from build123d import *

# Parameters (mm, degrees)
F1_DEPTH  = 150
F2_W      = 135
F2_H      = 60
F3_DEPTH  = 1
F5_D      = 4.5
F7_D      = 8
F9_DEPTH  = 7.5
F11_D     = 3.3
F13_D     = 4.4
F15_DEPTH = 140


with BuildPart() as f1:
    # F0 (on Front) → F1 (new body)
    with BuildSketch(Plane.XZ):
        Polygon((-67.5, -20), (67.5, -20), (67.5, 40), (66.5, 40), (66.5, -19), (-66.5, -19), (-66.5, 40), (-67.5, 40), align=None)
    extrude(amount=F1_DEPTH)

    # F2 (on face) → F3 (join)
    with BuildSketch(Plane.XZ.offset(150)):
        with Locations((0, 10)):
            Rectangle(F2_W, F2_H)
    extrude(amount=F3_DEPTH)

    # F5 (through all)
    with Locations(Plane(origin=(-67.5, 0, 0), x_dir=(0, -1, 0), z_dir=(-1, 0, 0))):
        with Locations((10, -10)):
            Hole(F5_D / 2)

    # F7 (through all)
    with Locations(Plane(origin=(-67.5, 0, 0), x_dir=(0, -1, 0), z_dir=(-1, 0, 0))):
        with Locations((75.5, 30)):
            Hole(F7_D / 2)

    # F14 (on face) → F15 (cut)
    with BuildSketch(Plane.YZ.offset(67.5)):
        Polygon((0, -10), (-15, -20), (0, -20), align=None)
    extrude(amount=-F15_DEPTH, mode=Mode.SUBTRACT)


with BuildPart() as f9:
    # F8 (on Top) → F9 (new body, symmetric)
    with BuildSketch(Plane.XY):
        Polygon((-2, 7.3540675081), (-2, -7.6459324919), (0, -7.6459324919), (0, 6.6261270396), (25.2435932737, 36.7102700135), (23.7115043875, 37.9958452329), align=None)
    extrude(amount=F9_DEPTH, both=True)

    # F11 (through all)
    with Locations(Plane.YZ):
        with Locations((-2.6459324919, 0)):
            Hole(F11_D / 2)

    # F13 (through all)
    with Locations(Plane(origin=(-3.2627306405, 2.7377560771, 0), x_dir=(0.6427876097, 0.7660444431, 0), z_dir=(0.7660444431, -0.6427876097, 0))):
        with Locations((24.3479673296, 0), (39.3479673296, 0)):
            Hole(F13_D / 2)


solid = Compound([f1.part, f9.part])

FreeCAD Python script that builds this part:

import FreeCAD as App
import Part
import Sketcher

V = App.Vector
Q = App.Units.Quantity


def add_polygon(sketch, points):
    """Adds a closed chain of lines whose ends are joined by coincident constraints."""
    first, n = sketch.GeometryCount, len(points)
    for a, b in zip(points, points[1:] + points[:1]):
        sketch.addGeometry(Part.LineSegment(App.Vector(*a, 0), App.Vector(*b, 0)), False)
    for i in range(n):
        sketch.addConstraint(Sketcher.Constraint("Coincident", first + i, 2, first + (i + 1) % n, 1))

doc = App.newDocument("Part")
params = doc.addObject("Spreadsheet::Sheet", "Params")
for row, (alias, value) in enumerate([
    ("sketch1_width", "135 mm"),
    ("sketch1_width2", "1 mm"),
    ("sketch1_height", "60 mm"),
    ("sketch1_height2", "59 mm"),
    ("pad1_length", "150 mm"),
    ("sketch2_width", "135 mm"),
    ("sketch2_height", "60 mm"),
    ("pad2_length", "1 mm"),
    ("sketch3_diameter", "4.5 mm"),
    ("hole_diameter", "4.5 mm"),
    ("sketch4_diameter", "8 mm"),
    ("hole2_diameter", "8 mm"),
    ("sketch5_width", "15 mm"),
    ("sketch5_height", "10 mm"),
    ("pocket1_length", "140 mm"),
    ("sketch6_width", "2 mm"),
    ("sketch6_height", "15 mm"),
    ("sketch6_length", "2 mm"),
    ("sketch6_length2", "40 mm"),
    ("pad3_length", "15 mm"),
    ("sketch7_diameter", "3.3 mm"),
    ("hole3_diameter", "3.3 mm"),
    ("sketch8_diameter", "4.4 mm"),
    ("hole4_diameter", "4.4 mm"),
], start=1):
    params.set(f"A{row}", alias)
    params.set(f"B{row}", "=" + value)
    params.setAlias(f"B{row}", alias)

body = doc.addObject("PartDesign::Body", "Body")

# Sketch on XZ plane
sketch1 = body.newObject("Sketcher::SketchObject", "Sketch")
sketch1.AttachmentSupport = (doc.getObject("XZ_Plane"), [""])
sketch1.MapMode = "FlatFace"
add_polygon(sketch1, [(-67.5, -20), (67.5, -20), (67.5, 40), (66.5, 40), (66.5, -19), (-66.5, -19), (-66.5, 40), (-67.5, 40)])  # lines 0-7
sketch1.addConstraint([
    Sketcher.Constraint("Horizontal", 0),
    Sketcher.Constraint("Vertical", 1),
    Sketcher.Constraint("Horizontal", 2),
    Sketcher.Constraint("Vertical", 3),
    Sketcher.Constraint("Horizontal", 4),
    Sketcher.Constraint("Vertical", 5),
    Sketcher.Constraint("Horizontal", 6),
    Sketcher.Constraint("Vertical", 7),
    Sketcher.Constraint("Symmetric", 2, 2, 5, 2, -2),
    Sketcher.Constraint("Equal", 2, 6),
    Sketcher.Constraint("DistanceX", 0, 1, 0, 2, 135.0),
    Sketcher.Constraint("DistanceX", 2, 2, 2, 1, 1.0),
    Sketcher.Constraint("DistanceY", 1, 1, 1, 2, 60.0),
    Sketcher.Constraint("DistanceY", 3, 2, 3, 1, 59.0),
    Sketcher.Constraint("DistanceY", 0, 2, -1, 1, 20.0),
])
sketch1.setExpression("Constraints[18]", "Params.sketch1_width")
sketch1.setExpression("Constraints[19]", "Params.sketch1_width2")
sketch1.setExpression("Constraints[20]", "Params.sketch1_height")
sketch1.setExpression("Constraints[21]", "Params.sketch1_height2")
pad1 = body.newObject("PartDesign::Pad", "Pad")
pad1.Profile = sketch1
pad1.setExpression("Length", "Params.pad1_length")

# Sketch on XZ plane
sketch2 = body.newObject("Sketcher::SketchObject", "Sketch001")
sketch2.AttachmentSupport = (doc.getObject("XZ_Plane"), [""])
sketch2.MapMode = "FlatFace"
sketch2.AttachmentOffset = App.Placement(V(0, 0, 150), App.Rotation())
add_polygon(sketch2, [(-67.5, 40), (-67.5, -20), (67.5, -20), (67.5, 40)])  # lines 0-3
sketch2.addConstraint([
    Sketcher.Constraint("Vertical", 0),
    Sketcher.Constraint("Horizontal", 1),
    Sketcher.Constraint("Vertical", 2),
    Sketcher.Constraint("Horizontal", 3),
    Sketcher.Constraint("DistanceX", 1, 1, 1, 2, 135.0),
    Sketcher.Constraint("DistanceY", 0, 2, 0, 1, 60.0),
    Sketcher.Constraint("DistanceY", 0, 2, -1, 1, 20.0),
    Sketcher.Constraint("DistanceX", 0, 2, -1, 1, 67.5),
])
sketch2.setExpression("Constraints[8]", "Params.sketch2_width")
sketch2.setExpression("Constraints[9]", "Params.sketch2_height")
pad2 = body.newObject("PartDesign::Pad", "Pad001")
pad2.Profile = sketch2
pad2.setExpression("Length", "Params.pad2_length")

# Sketch on YZ plane
sketch3 = body.newObject("Sketcher::SketchObject", "Sketch002")
sketch3.AttachmentSupport = (doc.getObject("YZ_Plane"), [""])
sketch3.MapMode = "FlatFace"
sketch3.AttachmentOffset = App.Placement(V(0, 0, -67.5), App.Rotation())
sketch3.addGeometry(Part.Circle(V(-10, -10, 0), V(0, 0, 1), 2.25), False)
sketch3.addConstraint([
    Sketcher.Constraint("Diameter", 0, 4.5),
    Sketcher.Constraint("DistanceX", 0, 3, -1, 1, 10.0),
    Sketcher.Constraint("DistanceY", 0, 3, -1, 1, 10.0),
])
sketch3.setExpression("Constraints[0]", "Params.sketch3_diameter")
doc.recompute()
hole = body.newObject("PartDesign::Hole", "Hole")
hole.Profile = sketch3
hole.ThreadType = "None"
hole.setExpression("Diameter", "Params.hole_diameter")
hole.DepthType = "ThroughAll"
hole.Reversed = True

# Sketch on YZ plane
sketch4 = body.newObject("Sketcher::SketchObject", "Sketch003")
sketch4.AttachmentSupport = (doc.getObject("YZ_Plane"), [""])
sketch4.MapMode = "FlatFace"
sketch4.AttachmentOffset = App.Placement(V(0, 0, -67.5), App.Rotation())
sketch4.addGeometry(Part.Circle(V(-75.5, 30, 0), V(0, 0, 1), 4), False)
sketch4.addConstraint([
    Sketcher.Constraint("Diameter", 0, 8.0),
    Sketcher.Constraint("DistanceY", -1, 1, 0, 3, 30.0),
    Sketcher.Constraint("DistanceX", 0, 3, -1, 1, 75.5),
])
sketch4.setExpression("Constraints[0]", "Params.sketch4_diameter")
doc.recompute()
hole2 = body.newObject("PartDesign::Hole", "Hole001")
hole2.Profile = sketch4
hole2.ThreadType = "None"
hole2.setExpression("Diameter", "Params.hole2_diameter")
hole2.DepthType = "ThroughAll"
hole2.Reversed = True

# Sketch on YZ plane
sketch5 = body.newObject("Sketcher::SketchObject", "Sketch004")
sketch5.AttachmentSupport = (doc.getObject("YZ_Plane"), [""])
sketch5.MapMode = "FlatFace"
sketch5.AttachmentOffset = App.Placement(V(0, 0, 67.5), App.Rotation())
add_polygon(sketch5, [(0, -10), (-15, -20), (0, -20)])  # lines 0-2
sketch5.addConstraint([
    Sketcher.Constraint("Horizontal", 1),
    Sketcher.Constraint("Vertical", 2),
    Sketcher.Constraint("PointOnObject", 1, 2, -2),
    Sketcher.Constraint("DistanceX", 1, 1, 1, 2, 15.0),
    Sketcher.Constraint("DistanceY", 2, 1, 2, 2, 10.0),
    Sketcher.Constraint("DistanceY", 0, 2, -1, 1, 20.0),
])
sketch5.setExpression("Constraints[6]", "Params.sketch5_width")
sketch5.setExpression("Constraints[7]", "Params.sketch5_height")
pocket1 = body.newObject("PartDesign::Pocket", "Pocket")
pocket1.Profile = sketch5
pocket1.setExpression("Length", "Params.pocket1_length")
body2 = doc.addObject("PartDesign::Body", "Body001")

# Sketch on XY plane
sketch6 = body2.newObject("Sketcher::SketchObject", "Sketch005")
sketch6.AttachmentSupport = (doc.getObject("XY_Plane001"), [""])
sketch6.MapMode = "FlatFace"
add_polygon(sketch6, [(-2, 7.354068), (-2, -7.645932), (0, -7.645932), (0, 6.626127), (25.243593, 36.71027), (23.711504, 37.995845)])  # lines 0-5
sketch6.addConstraint([
    Sketcher.Constraint("Vertical", 0),
    Sketcher.Constraint("Horizontal", 1),
    Sketcher.Constraint("Vertical", 2),
    Sketcher.Constraint("PointOnObject", 1, 2, -2),
    Sketcher.Constraint("Perpendicular", 3, 4),
    Sketcher.Constraint("Perpendicular", 4, 5),
    Sketcher.Constraint("DistanceX", 1, 1, 1, 2, 2.0),
    Sketcher.Constraint("DistanceY", 0, 2, 0, 1, 15.0),
    Sketcher.Constraint("Angle", 3, Q("50 deg")),
    Sketcher.Constraint("Distance", 4, 2.0),
    Sketcher.Constraint("Distance", 5, 40.0),
    Sketcher.Constraint("DistanceY", -1, 1, 3, 2, 36.71027),
])
sketch6.setExpression("Constraints[12]", "Params.sketch6_width")
sketch6.setExpression("Constraints[13]", "Params.sketch6_height")
sketch6.setExpression("Constraints[15]", "Params.sketch6_length")
sketch6.setExpression("Constraints[16]", "Params.sketch6_length2")
pad3 = body2.newObject("PartDesign::Pad", "Pad002")
pad3.Profile = sketch6
pad3.setExpression("Length", "Params.pad3_length")
pad3.Midplane = True

# Sketch on YZ plane
sketch7 = body2.newObject("Sketcher::SketchObject", "Sketch006")
sketch7.AttachmentSupport = (doc.getObject("YZ_Plane001"), [""])
sketch7.MapMode = "FlatFace"
sketch7.addGeometry(Part.Circle(V(-2.645932, 0, 0), V(0, 0, 1), 1.65), False)
sketch7.addConstraint([
    Sketcher.Constraint("PointOnObject", 0, 3, -1),
    Sketcher.Constraint("Diameter", 0, 3.3),
    Sketcher.Constraint("DistanceX", 0, 3, -1, 1, 2.645932),
])
sketch7.setExpression("Constraints[1]", "Params.sketch7_diameter")
doc.recompute()
hole3 = body2.newObject("PartDesign::Hole", "Hole002")
hole3.Profile = sketch7
hole3.ThreadType = "None"
hole3.setExpression("Diameter", "Params.hole3_diameter")
hole3.DepthType = "ThroughAll"

# Sketch on an angled plane
sketch8 = body2.newObject("Sketcher::SketchObject", "Sketch007")
sketch8.Placement = App.Placement(V(-3.262731, 2.737756, 0), App.Rotation(V(0.64278761, 0.766044443, 0), V(0, 0, 1), V(0.766044443, -0.64278761, 0), "ZXY"))
sketch8.addGeometry([
    Part.Circle(V(24.347967, 0, 0), V(0, 0, 1), 2.2),
    Part.Circle(V(39.347967, 0, 0), V(0, 0, 1), 2.2),
], False)
sketch8.addConstraint([
    Sketcher.Constraint("Equal", 0, 1),
    Sketcher.Constraint("PointOnObject", 0, 3, -1),
    Sketcher.Constraint("PointOnObject", 1, 3, -1),
    Sketcher.Constraint("Diameter", 0, 4.4),
    Sketcher.Constraint("DistanceX", 0, 3, 1, 3, 15.0),
    Sketcher.Constraint("DistanceX", -1, 1, 0, 3, 24.347967),
])
sketch8.setExpression("Constraints[3]", "Params.sketch8_diameter")
doc.recompute()
hole4 = body2.newObject("PartDesign::Hole", "Hole003")
hole4.Profile = sketch8
hole4.ThreadType = "None"
hole4.setExpression("Diameter", "Params.hole4_diameter")
hole4.DepthType = "ThroughAll"

doc.recompute()
